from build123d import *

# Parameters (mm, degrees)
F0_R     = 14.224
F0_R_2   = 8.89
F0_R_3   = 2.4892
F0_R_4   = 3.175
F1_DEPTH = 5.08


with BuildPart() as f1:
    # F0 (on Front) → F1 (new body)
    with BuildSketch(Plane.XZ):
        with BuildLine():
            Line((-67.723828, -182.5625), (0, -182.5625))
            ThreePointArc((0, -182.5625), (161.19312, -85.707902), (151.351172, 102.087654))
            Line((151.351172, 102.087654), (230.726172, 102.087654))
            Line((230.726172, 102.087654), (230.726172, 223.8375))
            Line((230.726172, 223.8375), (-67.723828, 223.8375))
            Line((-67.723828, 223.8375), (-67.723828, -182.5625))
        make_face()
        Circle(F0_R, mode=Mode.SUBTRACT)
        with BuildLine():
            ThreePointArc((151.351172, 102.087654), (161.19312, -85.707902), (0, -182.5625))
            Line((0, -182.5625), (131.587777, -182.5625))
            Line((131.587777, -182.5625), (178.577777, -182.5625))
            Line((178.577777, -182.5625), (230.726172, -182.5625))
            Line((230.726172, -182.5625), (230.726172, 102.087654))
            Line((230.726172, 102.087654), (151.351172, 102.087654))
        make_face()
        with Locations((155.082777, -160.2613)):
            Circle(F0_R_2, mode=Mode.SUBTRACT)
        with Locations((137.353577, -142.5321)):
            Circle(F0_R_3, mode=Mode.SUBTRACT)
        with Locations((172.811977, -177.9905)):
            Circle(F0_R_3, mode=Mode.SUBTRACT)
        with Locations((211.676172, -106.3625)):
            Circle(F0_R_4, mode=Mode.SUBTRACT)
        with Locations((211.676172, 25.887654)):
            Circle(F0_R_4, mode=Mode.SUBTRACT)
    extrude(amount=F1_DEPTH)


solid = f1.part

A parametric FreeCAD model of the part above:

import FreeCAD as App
import Part
import Sketcher
Q = App.Units.Quantity

doc = App.newDocument("Part")
body = doc.addObject("PartDesign::Body", "Body")

sketch1 = body.newObject("Sketcher::SketchObject", "Sketch")
sketch1.AttachmentSupport = (doc.getObject("XZ_Plane"), [""])
sketch1.MapMode = "FlatFace"
sketch1.addGeometry([
    Part.LineSegment(App.Vector(-67.723828, -182.5625, 0), App.Vector(230.726172, -182.5625, 0)),
    Part.LineSegment(App.Vector(230.726172, -182.5625, 0), App.Vector(230.726172, 223.8375, 0)),
    Part.LineSegment(App.Vector(230.726172, 223.8375, 0), App.Vector(-67.723828, 223.8375, 0)),
    Part.LineSegment(App.Vector(-67.723828, 223.8375, 0), App.Vector(-67.723828, -182.5625, 0)),
    Part.Circle(App.Vector(155.082777, -160.2613, 0), App.Vector(0, 0, 1), 8.89),
    Part.Circle(App.Vector(137.353577, -142.5321, 0), App.Vector(0, 0, 1), 2.4892),
    Part.Circle(App.Vector(172.811977, -177.9905, 0), App.Vector(0, 0, 1), 2.4892),
    Part.Circle(App.Vector(211.676172, -106.3625, 0), App.Vector(0, 0, 1), 3.175),
    Part.Circle(App.Vector(0, 0, 0), App.Vector(0, 0, 1), 14.224),
    Part.Circle(App.Vector(211.676172, 25.887654, 0), App.Vector(0, 0, 1), 3.175),
], False)
sketch1.addConstraint([
    Sketcher.Constraint("Coincident", 0, 2, 1, 1),
    Sketcher.Constraint("Coincident", 1, 2, 2, 1),
    Sketcher.Constraint("Coincident", 2, 2, 3, 1),
    Sketcher.Constraint("Coincident", 3, 2, 0, 1),
    Sketcher.Constraint("Horizontal", 0),
    Sketcher.Constraint("Vertical", 1),
    Sketcher.Constraint("Horizontal", 2),
    Sketcher.Constraint("Vertical", 3),
    Sketcher.Constraint("Coincident", 8, 3, -1, 1),
    Sketcher.Constraint("Equal", 5, 6),
    Sketcher.Constraint("Equal", 7, 9),
    Sketcher.Constraint("Vertical", 7, 3, 9, 3),
    Sketcher.Constraint("Diameter", 4, Q("0.7 in")),
    Sketcher.Constraint("Diameter", 7, Q("0.25 in")),
    Sketcher.Constraint("Diameter", 8, Q("1.12 in")),
    Sketcher.Constraint("DistanceY", 1, 1, 1, 2, Q("16 in")),
    Sketcher.Constraint("Diameter", 5, Q("0.196 in")),
    Sketcher.Constraint("DistanceY", 0, 2, 7, 3, Q("3 in")),
    Sketcher.Constraint("DistanceX", 2, 2, 9, 3, Q("11 in")),
    Sketcher.Constraint("DistanceX", 0, 1, 0, 2, Q("11.75 in")),
    Sketcher.Constraint("DistanceY", 6, 3, 7, 3, Q("2.82 in")),
    Sketcher.Constraint("DistanceY", 7, 3, -1, 1, Q("4.1875 in")),
    Sketcher.Constraint("DistanceX", 5, 3, 4, 3, Q("0.698 in")),
    Sketcher.Constraint("DistanceY", 4, 3, 5, 3, Q("0.698 in")),
    Sketcher.Constraint("DistanceX", 4, 3, 6, 3, Q("0.698 in")),
    Sketcher.Constraint("DistanceY", 6, 3, 4, 3, Q("0.698 in")),
    Sketcher.Constraint("DistanceX", -1, 1, 7, 3, 211.676172),
    Sketcher.Constraint("DistanceX", -1, 1, 4, 3, 155.082777),
    Sketcher.Constraint("DistanceY", -1, 1, 9, 3, 25.887654),
])
pad1 = body.newObject("PartDesign::Pad", "Pad")
pad1.Profile = sketch1
pad1.Length = Q("0.2 in")

doc.recompute()
